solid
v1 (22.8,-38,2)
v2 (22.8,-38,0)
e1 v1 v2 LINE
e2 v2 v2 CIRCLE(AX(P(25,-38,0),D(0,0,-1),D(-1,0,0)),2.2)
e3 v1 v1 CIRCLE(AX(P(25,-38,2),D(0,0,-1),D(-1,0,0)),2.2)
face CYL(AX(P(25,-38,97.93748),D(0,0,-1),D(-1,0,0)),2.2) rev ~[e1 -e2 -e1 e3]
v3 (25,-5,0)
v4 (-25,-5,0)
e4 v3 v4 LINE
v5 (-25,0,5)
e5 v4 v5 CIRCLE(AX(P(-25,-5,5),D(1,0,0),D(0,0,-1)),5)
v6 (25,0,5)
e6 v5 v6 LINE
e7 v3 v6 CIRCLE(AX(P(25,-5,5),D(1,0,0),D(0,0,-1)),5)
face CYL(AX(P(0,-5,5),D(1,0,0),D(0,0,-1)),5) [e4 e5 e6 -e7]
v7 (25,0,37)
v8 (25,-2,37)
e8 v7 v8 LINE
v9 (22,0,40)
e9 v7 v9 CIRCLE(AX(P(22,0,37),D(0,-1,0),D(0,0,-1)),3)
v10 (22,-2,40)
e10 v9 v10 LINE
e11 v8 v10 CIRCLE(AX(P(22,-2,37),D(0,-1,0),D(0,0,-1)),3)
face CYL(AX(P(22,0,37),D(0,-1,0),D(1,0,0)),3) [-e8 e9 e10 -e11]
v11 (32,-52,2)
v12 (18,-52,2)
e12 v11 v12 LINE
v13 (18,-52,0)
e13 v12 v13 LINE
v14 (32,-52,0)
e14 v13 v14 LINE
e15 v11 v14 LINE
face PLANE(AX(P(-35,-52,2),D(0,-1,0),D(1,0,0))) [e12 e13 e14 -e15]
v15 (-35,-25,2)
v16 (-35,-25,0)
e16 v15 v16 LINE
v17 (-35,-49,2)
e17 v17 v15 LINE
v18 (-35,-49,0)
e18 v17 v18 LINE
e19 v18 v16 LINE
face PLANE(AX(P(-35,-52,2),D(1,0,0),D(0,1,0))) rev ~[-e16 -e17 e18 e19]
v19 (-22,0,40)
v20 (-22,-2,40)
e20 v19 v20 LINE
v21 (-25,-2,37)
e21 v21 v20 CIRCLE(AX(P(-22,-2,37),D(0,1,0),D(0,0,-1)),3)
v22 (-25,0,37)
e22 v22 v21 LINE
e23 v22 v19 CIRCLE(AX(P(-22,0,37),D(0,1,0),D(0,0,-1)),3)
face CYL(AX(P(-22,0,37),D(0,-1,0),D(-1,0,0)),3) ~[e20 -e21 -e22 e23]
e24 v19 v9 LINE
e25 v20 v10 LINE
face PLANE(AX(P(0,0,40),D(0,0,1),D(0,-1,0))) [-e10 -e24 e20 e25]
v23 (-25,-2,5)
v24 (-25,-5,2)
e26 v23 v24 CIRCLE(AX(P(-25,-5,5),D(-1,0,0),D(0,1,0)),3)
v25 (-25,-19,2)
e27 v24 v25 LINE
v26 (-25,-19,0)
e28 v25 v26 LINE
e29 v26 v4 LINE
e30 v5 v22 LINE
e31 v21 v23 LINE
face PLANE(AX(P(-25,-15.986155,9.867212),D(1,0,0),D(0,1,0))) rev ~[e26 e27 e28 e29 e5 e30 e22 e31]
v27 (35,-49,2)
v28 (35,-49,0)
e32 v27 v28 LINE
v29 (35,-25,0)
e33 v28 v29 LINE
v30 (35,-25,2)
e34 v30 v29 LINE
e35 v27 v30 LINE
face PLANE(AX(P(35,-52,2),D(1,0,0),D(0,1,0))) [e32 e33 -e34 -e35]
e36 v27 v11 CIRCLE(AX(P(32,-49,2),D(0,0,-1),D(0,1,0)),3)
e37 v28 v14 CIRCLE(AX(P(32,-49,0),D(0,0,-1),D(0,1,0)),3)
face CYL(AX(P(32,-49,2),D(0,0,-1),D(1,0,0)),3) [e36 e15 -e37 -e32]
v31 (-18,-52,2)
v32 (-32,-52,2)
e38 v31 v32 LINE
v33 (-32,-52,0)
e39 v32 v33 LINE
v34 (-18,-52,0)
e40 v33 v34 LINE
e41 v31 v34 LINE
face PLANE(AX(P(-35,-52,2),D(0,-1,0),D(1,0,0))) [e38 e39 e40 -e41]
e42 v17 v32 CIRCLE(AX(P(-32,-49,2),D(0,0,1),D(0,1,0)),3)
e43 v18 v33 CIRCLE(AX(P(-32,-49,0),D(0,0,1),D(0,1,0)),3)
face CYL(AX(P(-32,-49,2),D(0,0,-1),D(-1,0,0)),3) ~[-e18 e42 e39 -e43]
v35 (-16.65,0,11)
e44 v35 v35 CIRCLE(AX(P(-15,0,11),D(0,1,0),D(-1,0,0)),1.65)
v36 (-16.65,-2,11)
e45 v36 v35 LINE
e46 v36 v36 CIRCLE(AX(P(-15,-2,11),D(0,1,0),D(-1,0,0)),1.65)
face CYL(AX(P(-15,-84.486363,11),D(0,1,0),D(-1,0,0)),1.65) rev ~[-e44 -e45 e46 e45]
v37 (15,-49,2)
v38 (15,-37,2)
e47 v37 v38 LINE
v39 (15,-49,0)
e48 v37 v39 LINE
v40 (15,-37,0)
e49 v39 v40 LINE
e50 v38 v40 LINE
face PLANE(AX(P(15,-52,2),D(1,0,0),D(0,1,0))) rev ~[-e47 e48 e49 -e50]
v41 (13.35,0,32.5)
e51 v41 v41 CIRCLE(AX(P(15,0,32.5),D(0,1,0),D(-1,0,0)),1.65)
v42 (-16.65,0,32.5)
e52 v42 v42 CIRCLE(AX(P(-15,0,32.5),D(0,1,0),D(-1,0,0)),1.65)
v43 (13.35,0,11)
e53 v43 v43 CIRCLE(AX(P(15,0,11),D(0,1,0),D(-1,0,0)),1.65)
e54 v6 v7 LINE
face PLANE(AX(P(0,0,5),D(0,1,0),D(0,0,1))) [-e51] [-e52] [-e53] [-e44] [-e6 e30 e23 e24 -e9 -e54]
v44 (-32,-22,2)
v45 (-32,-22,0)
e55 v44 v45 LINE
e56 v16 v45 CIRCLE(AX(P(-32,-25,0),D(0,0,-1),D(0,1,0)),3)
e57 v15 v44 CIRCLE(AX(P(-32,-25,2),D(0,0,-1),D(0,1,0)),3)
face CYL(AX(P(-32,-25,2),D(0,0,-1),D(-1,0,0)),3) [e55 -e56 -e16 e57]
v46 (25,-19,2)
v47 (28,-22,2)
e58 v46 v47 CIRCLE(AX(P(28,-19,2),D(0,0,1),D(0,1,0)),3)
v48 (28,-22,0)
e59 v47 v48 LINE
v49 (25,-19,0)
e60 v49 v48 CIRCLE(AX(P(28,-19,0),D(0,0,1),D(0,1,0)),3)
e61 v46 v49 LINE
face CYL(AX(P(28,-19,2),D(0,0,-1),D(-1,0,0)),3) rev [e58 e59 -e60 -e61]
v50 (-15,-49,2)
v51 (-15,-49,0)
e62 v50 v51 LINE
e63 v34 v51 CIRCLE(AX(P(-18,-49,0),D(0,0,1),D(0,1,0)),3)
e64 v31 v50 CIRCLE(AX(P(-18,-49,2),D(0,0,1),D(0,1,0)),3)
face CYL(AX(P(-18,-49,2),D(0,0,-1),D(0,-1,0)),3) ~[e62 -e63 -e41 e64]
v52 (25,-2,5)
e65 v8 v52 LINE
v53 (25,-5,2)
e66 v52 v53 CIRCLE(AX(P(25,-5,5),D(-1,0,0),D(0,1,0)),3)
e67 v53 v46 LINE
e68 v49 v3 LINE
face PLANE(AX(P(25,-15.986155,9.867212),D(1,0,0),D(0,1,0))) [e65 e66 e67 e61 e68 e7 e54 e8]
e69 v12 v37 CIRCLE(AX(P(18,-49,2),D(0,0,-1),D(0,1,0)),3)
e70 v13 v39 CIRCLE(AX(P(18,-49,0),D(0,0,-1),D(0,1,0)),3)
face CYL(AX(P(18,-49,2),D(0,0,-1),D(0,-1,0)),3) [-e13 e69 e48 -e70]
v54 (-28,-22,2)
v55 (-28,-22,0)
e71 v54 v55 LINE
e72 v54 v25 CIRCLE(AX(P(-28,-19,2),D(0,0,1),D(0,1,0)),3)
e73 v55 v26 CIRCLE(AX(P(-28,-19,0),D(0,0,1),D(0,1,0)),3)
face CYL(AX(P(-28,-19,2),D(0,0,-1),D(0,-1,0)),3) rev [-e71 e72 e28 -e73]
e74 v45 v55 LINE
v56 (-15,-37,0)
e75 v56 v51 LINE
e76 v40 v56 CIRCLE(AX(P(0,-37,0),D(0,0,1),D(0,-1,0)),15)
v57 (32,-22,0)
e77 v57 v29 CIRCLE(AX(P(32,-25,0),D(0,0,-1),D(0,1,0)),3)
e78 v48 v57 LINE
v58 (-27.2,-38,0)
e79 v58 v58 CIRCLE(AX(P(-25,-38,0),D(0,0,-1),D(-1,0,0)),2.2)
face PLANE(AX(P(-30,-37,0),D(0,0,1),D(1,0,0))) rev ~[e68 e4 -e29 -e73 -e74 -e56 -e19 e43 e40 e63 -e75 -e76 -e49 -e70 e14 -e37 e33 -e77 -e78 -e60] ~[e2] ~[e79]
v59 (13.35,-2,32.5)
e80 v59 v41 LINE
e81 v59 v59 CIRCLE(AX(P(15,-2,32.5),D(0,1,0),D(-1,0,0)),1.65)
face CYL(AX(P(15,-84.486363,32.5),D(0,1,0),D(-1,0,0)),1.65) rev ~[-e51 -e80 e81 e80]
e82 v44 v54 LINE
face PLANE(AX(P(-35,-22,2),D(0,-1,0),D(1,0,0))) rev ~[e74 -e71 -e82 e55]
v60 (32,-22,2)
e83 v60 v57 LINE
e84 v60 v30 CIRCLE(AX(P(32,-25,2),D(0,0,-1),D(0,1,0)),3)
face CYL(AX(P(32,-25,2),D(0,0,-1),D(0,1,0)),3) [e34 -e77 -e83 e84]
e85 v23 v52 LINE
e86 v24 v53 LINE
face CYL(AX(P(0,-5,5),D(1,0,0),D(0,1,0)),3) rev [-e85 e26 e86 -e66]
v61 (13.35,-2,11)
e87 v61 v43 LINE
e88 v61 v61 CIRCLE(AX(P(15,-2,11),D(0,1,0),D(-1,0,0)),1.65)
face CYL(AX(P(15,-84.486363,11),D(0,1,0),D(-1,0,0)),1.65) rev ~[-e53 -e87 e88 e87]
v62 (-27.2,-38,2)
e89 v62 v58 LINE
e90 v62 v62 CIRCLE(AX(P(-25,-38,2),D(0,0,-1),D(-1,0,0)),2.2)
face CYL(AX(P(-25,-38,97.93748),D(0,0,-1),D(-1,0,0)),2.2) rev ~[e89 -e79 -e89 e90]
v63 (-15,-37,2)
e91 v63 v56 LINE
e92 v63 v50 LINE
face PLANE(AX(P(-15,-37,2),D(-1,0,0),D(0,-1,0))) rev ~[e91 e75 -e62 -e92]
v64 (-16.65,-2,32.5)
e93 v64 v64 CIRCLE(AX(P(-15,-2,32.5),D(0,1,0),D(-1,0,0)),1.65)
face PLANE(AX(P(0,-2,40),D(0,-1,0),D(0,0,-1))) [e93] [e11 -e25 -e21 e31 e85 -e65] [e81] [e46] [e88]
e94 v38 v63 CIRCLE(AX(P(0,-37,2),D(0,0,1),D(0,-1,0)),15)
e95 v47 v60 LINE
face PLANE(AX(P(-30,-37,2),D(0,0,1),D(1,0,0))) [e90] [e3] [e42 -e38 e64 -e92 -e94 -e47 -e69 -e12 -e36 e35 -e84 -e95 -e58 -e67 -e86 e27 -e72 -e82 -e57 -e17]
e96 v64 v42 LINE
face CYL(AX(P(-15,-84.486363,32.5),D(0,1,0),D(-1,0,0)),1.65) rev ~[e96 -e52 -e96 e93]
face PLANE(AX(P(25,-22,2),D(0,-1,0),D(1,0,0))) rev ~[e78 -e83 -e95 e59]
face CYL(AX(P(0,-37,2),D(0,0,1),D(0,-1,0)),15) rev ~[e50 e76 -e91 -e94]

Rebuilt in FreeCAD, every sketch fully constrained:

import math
import FreeCAD as App
import Part
import Sketcher


def edges_at(feature, points):
    """Names of the edges that pass closest to the given points."""
    edges = feature.Shape.Edges
    near = lambda p: min(range(len(edges)), key=lambda i: edges[i].distToShape(Part.Vertex(*p))[0])
    return sorted({f"Edge{near(p) + 1}" for p in points})

doc = App.newDocument("Part")
params = doc.addObject("Spreadsheet::Sheet", "Params")
for row, (alias, value) in enumerate([
    ("sketch1_radius", "5 mm"),
    ("sketch1_radius2", "3 mm"),
    ("sketch1_width", "47 mm"),
    ("sketch1_height", "35 mm"),
    ("pad1_length", "50 mm"),
    ("sketch2_diameter", "3.3 mm"),
    ("hole_diameter", "3.3 mm"),
    ("sketch3_width", "10 mm"),
    ("sketch3_height", "30 mm"),
    ("sketch4_diameter", "4.4 mm"),
    ("hole2_diameter", "4.4 mm"),
    ("sketch5_radius", "15 mm"),
    ("sketch5_height", "15 mm"),
    ("fillet_radius", "3 mm"),
], start=1):
    params.set(f"A{row}", alias)
    params.set(f"B{row}", "=" + value)
    params.setAlias(f"B{row}", alias)

body = doc.addObject("PartDesign::Body", "Body")

# Sketch on YZ plane
sketch1 = doc.addObject("Sketcher::SketchObject", "Sketch")
body.addObject(sketch1)
sketch1.AttachmentSupport = (doc.YZ_Plane, [""])
sketch1.MapMode = "FlatFace"
sketch1.addGeometry([
    Part.ArcOfCircle(Part.Circle(App.Vector(-5, 5, 0), App.Vector(0, 0, 1), 5), math.radians(-90), math.radians(0)),  # 0
    Part.LineSegment(App.Vector(0, 5, 0), App.Vector(0, 40, 0)),  # 1
    Part.LineSegment(App.Vector(0, 40, 0), App.Vector(-2, 40, 0)),  # 2
    Part.LineSegment(App.Vector(-2, 40, 0), App.Vector(-2, 5, 0)),  # 3
    Part.ArcOfCircle(Part.Circle(App.Vector(-5, 5, 0), App.Vector(0, 0, 1), 3), math.radians(-90), math.radians(0)),  # 4
    Part.LineSegment(App.Vector(-5, 2, 0), App.Vector(-52, 2, 0)),  # 5
    Part.LineSegment(App.Vector(-52, 2, 0), App.Vector(-52, 0, 0)),  # 6
    Part.LineSegment(App.Vector(-52, 0, 0), App.Vector(-5, 0, 0)),  # 7
], False)
sketch1.addConstraint([
    Sketcher.Constraint("Tangent", 0, 2, 1, 1),
    Sketcher.Constraint("Coincident", 1, 2, 2, 1),
    Sketcher.Constraint("Coincident", 2, 2, 3, 1),
    Sketcher.Constraint("Tangent", 3, 2, 4, 2),
    Sketcher.Constraint("Tangent", 4, 1, 5, 1),
    Sketcher.Constraint("Coincident", 5, 2, 6, 1),
    Sketcher.Constraint("Coincident", 6, 2, 7, 1),
    Sketcher.Constraint("Tangent", 7, 2, 0, 1),
    Sketcher.Constraint("Vertical", 1),
    Sketcher.Constraint("Horizontal", 2),
    Sketcher.Constraint("Vertical", 3),
    Sketcher.Constraint("Horizontal", 5),
    Sketcher.Constraint("Vertical", 6),
    Sketcher.Constraint("Horizontal", 7),
    Sketcher.Constraint("Coincident", 4, 3, 0, 3),
    Sketcher.Constraint("PointOnObject", 0, 2, -2),
    Sketcher.Constraint("PointOnObject", 6, 2, -1),
    Sketcher.Constraint("Radius", 0, 5.0),
    Sketcher.Constraint("Radius", 4, 3.0),
    Sketcher.Constraint("DistanceX", 5, 2, 5, 1, 47.0),
    Sketcher.Constraint("DistanceY", 1, 1, 1, 2, 35.0),
])
sketch1.setExpression("Constraints[17]", "Params.sketch1_radius")
sketch1.setExpression("Constraints[18]", "Params.sketch1_radius2")
sketch1.setExpression("Constraints[19]", "Params.sketch1_width")
sketch1.setExpression("Constraints[20]", "Params.sketch1_height")
pad1 = doc.addObject("PartDesign::Pad", "Pad")
body.addObject(pad1)
pad1.Profile = sketch1
pad1.setExpression("Length", "Params.pad1_length")
pad1.Midplane = True

# Sketch on XZ plane
sketch2 = doc.addObject("Sketcher::SketchObject", "Sketch001")
body.addObject(sketch2)
sketch2.AttachmentSupport = (doc.XZ_Plane, [""])
sketch2.MapMode = "FlatFace"
sketch2.AttachmentOffset = App.Placement(App.Vector(0, 0, 2), App.Rotation())
sketch2.addGeometry([
    Part.Circle(App.Vector(-15, 32.5, 0), App.Vector(0, 0, 1), 1.6),
    Part.Circle(App.Vector(-15, 11, 0), App.Vector(0, 0, 1), 1.6),
    Part.Circle(App.Vector(15, 11, 0), App.Vector(0, 0, 1), 1.6),
    Part.Circle(App.Vector(15, 32.5, 0), App.Vector(0, 0, 1), 1.6),
], False)
sketch2.addConstraint([
    Sketcher.Constraint("Equal", 0, 1),
    Sketcher.Constraint("Equal", 1, 2),
    Sketcher.Constraint("Equal", 2, 3),
    Sketcher.Constraint("Symmetric", 1, 3, 2, 3, -2),
    Sketcher.Constraint("Symmetric", 0, 3, 3, 3, -2),
    Sketcher.Constraint("Vertical", 0, 3, 1, 3),
    Sketcher.Constraint("Diameter", 0, 3.3),
    Sketcher.Constraint("DistanceX", 0, 3, -1, 1, 15.0),
    Sketcher.Constraint("DistanceY", -1, 1, 1, 3, 11.0),
    Sketcher.Constraint("DistanceY", -1, 1, 0, 3, 32.5),
])
sketch2.setExpression("Constraints[6]", "Params.sketch2_diameter")
doc.recompute()
hole = doc.addObject("PartDesign::Hole", "Hole")
body.addObject(hole)
hole.Profile = sketch2
hole.ThreadType = "None"
hole.setExpression("Diameter", "Params.hole_diameter")
hole.DepthType = "ThroughAll"

# Sketch on XY plane
sketch3 = doc.addObject("Sketcher::SketchObject", "Sketch002")
body.addObject(sketch3)
sketch3.AttachmentSupport = (doc.XY_Plane, [""])
sketch3.MapMode = "FlatFace"
sketch3.AttachmentOffset = App.Placement(App.Vector(0, 0, 2), App.Rotation())
sketch3.addGeometry([
    Part.LineSegment(App.Vector(-35, -22, 0), App.Vector(-35, -52, 0)),  # 0
    Part.LineSegment(App.Vector(-35, -52, 0), App.Vector(-25, -52, 0)),  # 1
    Part.LineSegment(App.Vector(-25, -52, 0), App.Vector(-25, -22, 0)),  # 2
    Part.LineSegment(App.Vector(-25, -22, 0), App.Vector(-35, -22, 0)),  # 3
    Part.LineSegment(App.Vector(25, -22, 0), App.Vector(25, -52, 0)),  # 4
    Part.LineSegment(App.Vector(25, -52, 0), App.Vector(35, -52, 0)),  # 5
    Part.LineSegment(App.Vector(35, -52, 0), App.Vector(35, -22, 0)),  # 6
    Part.LineSegment(App.Vector(35, -22, 0), App.Vector(25, -22, 0)),  # 7
], False)
sketch3.addConstraint([
    Sketcher.Constraint("Coincident", 0, 2, 1, 1),
    Sketcher.Constraint("Coincident", 1, 2, 2, 1),
    Sketcher.Constraint("Coincident", 2, 2, 3, 1),
    Sketcher.Constraint("Coincident", 3, 2, 0, 1),
    Sketcher.Constraint("Coincident", 4, 2, 5, 1),
    Sketcher.Constraint("Coincident", 5, 2, 6, 1),
    Sketcher.Constraint("Coincident", 6, 2, 7, 1),
    Sketcher.Constraint("Coincident", 7, 2, 4, 1),
    Sketcher.Constraint("Vertical", 0),
    Sketcher.Constraint("Horizontal", 1),
    Sketcher.Constraint("Vertical", 2),
    Sketcher.Constraint("Horizontal", 3),
    Sketcher.Constraint("Vertical", 4),
    Sketcher.Constraint("Horizontal", 5),
    Sketcher.Constraint("Vertical", 6),
    Sketcher.Constraint("Horizontal", 7),
    Sketcher.Constraint("Symmetric", 1, 2, 4, 2, -2),
    Sketcher.Constraint("Symmetric", 3, 2, 6, 2, -2),
    Sketcher.Constraint("DistanceX", 1, 1, 1, 2, 10.0),
    Sketcher.Constraint("DistanceY", 0, 2, 0, 1, 30.0),
    Sketcher.Constraint("DistanceX", 0, 2, -1, 1, 35.0),
    Sketcher.Constraint("DistanceY", 0, 2, -1, 1, 52.0),
])
sketch3.setExpression("Constraints[18]", "Params.sketch3_width")
sketch3.setExpression("Constraints[19]", "Params.sketch3_height")
pad2 = doc.addObject("PartDesign::Pad", "Pad001")
body.addObject(pad2)
pad2.Profile = sketch3
pad2.Type = "UpToLast"
pad2.Reversed = True

# Sketch on XY plane
sketch4 = doc.addObject("Sketcher::SketchObject", "Sketch003")
body.addObject(sketch4)
sketch4.AttachmentSupport = (doc.XY_Plane, [""])
sketch4.MapMode = "FlatFace"
sketch4.AttachmentOffset = App.Placement(App.Vector(0, 0, 2), App.Rotation())
sketch4.addGeometry([
    Part.Circle(App.Vector(-25, -38, 0), App.Vector(0, 0, 1), 2.2),
    Part.Circle(App.Vector(25, -38, 0), App.Vector(0, 0, 1), 2.2),
], False)
sketch4.addConstraint([
    Sketcher.Constraint("Equal", 0, 1),
    Sketcher.Constraint("Symmetric", 0, 3, 1, 3, -2),
    Sketcher.Constraint("Diameter", 0, 4.4),
    Sketcher.Constraint("DistanceX", 0, 3, -1, 1, 25.0),
    Sketcher.Constraint("DistanceY", 0, 3, -1, 1, 38.0),
])
sketch4.setExpression("Constraints[2]", "Params.sketch4_diameter")
doc.recompute()
hole2 = doc.addObject("PartDesign::Hole", "Hole001")
body.addObject(hole2)
hole2.Profile = sketch4
hole2.ThreadType = "None"
hole2.setExpression("Diameter", "Params.hole2_diameter")
hole2.DepthType = "ThroughAll"

# Sketch on XY plane
sketch5 = doc.addObject("Sketcher::SketchObject", "Sketch004")
body.addObject(sketch5)
sketch5.AttachmentSupport = (doc.XY_Plane, [""])
sketch5.MapMode = "FlatFace"
sketch5.AttachmentOffset = App.Placement(App.Vector(0, 0, 2), App.Rotation())
sketch5.addGeometry([
    Part.ArcOfCircle(Part.Circle(App.Vector(0, -37, 0), App.Vector(0, 0, 1), 15), math.radians(0), math.radians(180)),
    Part.LineSegment(App.Vector(-15, -37, 0), App.Vector(-15, -52, 0)),
    Part.LineSegment(App.Vector(-15, -52, 0), App.Vector(15, -52, 0)),
    Part.LineSegment(App.Vector(15, -52, 0), App.Vector(15, -37, 0)),
], False)
sketch5.addConstraint([
    Sketcher.Constraint("Tangent", 0, 2, 1, 1),
    Sketcher.Constraint("Coincident", 1, 2, 2, 1),
    Sketcher.Constraint("Coincident", 2, 2, 3, 1),
    Sketcher.Constraint("Tangent", 3, 2, 0, 1),
    Sketcher.Constraint("Vertical", 1),
    Sketcher.Constraint("Horizontal", 2),
    Sketcher.Constraint("Vertical", 3),
    Sketcher.Constraint("PointOnObject", 0, 3, -2),
    Sketcher.Constraint("Radius", 0, 15.0),
    Sketcher.Constraint("DistanceY", 1, 2, 1, 1, 15.0),
    Sketcher.Constraint("DistanceY", 0, 3, -1, 1, 37.0),
])
sketch5.setExpression("Constraints[8]", "Params.sketch5_radius")
sketch5.setExpression("Constraints[9]", "Params.sketch5_height")
pocket1 = doc.addObject("PartDesign::Pocket", "Pocket")
body.addObject(pocket1)
pocket1.Profile = sketch5
pocket1.Type = "ThroughAll"
doc.recompute()

fillet = doc.addObject("PartDesign::Fillet", "Fillet")
body.addObject(fillet)
fillet.Base = (pocket1, edges_at(pocket1, [
    (-15, -52, 1),
    (-35, -52, 1),
    (-35, -22, 1),
    (-25, -22, 1),
    (-25, -1, 40),
    (15, -52, 1),
    (35, -52, 1),
    (35, -22, 1),
    (25, -22, 1),
    (25, -1, 40),
]))
fillet.setExpression("Radius", "Params.fillet_radius")

doc.recompute()
